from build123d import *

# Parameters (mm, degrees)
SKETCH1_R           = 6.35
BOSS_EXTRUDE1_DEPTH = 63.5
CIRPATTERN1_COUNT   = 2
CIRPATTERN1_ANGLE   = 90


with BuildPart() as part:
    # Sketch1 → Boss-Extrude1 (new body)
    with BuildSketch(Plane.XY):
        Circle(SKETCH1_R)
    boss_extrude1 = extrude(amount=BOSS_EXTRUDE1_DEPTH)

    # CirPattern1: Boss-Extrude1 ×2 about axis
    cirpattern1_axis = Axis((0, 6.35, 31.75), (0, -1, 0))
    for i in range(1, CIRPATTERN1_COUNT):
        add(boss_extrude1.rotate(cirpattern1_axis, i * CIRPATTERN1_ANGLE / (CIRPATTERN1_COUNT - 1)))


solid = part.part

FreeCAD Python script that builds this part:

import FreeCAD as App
import Part
import Sketcher

V = App.Vector
Q = App.Units.Quantity

doc = App.newDocument("Part")
params = doc.addObject("Spreadsheet::Sheet", "Params")
for row, (alias, value) in enumerate([
    ("sketch1_diameter", "0.5 in"),
    ("pad1_length", "2.5 in"),
], start=1):
    params.set(f"A{row}", alias)
    params.set(f"B{row}", "=" + value)
    params.setAlias(f"B{row}", alias)

body = doc.addObject("PartDesign::Body", "Body")

sketch1 = body.newObject("Sketcher::SketchObject", "Sketch")
sketch1.AttachmentSupport = (doc.getObject("XY_Plane"), [""])
sketch1.MapMode = "FlatFace"
sketch1.addGeometry(Part.Circle(V(0, 0, 0), V(0, 0, 1), 6), False)
sketch1.addConstraint([
    Sketcher.Constraint("Coincident", 0, 3, -1, 1),
    Sketcher.Constraint("Diameter", 0, Q("0.5 in")),
])
sketch1.setExpression("Constraints[1]", "Params.sketch1_diameter")
pad1 = body.newObject("PartDesign::Pad", "Pad")
pad1.Profile = sketch1
pad1.setExpression("Length", "Params.pad1_length")
doc.recompute()

datumline = body.newObject("PartDesign::Line", "DatumLine")
datumline.Placement = App.Placement(V(0, 0, 31.75), App.Rotation(V(0, 0, 1), V(0, -1, 0)))
polarpattern = body.newObject("PartDesign::PolarPattern", "PolarPattern")
polarpattern.Originals = [pad1]
polarpattern.Axis = (datumline, [""])
polarpattern.Angle = 90
polarpattern.Occurrences = 2
body.Tip = polarpattern

doc.recompute()
